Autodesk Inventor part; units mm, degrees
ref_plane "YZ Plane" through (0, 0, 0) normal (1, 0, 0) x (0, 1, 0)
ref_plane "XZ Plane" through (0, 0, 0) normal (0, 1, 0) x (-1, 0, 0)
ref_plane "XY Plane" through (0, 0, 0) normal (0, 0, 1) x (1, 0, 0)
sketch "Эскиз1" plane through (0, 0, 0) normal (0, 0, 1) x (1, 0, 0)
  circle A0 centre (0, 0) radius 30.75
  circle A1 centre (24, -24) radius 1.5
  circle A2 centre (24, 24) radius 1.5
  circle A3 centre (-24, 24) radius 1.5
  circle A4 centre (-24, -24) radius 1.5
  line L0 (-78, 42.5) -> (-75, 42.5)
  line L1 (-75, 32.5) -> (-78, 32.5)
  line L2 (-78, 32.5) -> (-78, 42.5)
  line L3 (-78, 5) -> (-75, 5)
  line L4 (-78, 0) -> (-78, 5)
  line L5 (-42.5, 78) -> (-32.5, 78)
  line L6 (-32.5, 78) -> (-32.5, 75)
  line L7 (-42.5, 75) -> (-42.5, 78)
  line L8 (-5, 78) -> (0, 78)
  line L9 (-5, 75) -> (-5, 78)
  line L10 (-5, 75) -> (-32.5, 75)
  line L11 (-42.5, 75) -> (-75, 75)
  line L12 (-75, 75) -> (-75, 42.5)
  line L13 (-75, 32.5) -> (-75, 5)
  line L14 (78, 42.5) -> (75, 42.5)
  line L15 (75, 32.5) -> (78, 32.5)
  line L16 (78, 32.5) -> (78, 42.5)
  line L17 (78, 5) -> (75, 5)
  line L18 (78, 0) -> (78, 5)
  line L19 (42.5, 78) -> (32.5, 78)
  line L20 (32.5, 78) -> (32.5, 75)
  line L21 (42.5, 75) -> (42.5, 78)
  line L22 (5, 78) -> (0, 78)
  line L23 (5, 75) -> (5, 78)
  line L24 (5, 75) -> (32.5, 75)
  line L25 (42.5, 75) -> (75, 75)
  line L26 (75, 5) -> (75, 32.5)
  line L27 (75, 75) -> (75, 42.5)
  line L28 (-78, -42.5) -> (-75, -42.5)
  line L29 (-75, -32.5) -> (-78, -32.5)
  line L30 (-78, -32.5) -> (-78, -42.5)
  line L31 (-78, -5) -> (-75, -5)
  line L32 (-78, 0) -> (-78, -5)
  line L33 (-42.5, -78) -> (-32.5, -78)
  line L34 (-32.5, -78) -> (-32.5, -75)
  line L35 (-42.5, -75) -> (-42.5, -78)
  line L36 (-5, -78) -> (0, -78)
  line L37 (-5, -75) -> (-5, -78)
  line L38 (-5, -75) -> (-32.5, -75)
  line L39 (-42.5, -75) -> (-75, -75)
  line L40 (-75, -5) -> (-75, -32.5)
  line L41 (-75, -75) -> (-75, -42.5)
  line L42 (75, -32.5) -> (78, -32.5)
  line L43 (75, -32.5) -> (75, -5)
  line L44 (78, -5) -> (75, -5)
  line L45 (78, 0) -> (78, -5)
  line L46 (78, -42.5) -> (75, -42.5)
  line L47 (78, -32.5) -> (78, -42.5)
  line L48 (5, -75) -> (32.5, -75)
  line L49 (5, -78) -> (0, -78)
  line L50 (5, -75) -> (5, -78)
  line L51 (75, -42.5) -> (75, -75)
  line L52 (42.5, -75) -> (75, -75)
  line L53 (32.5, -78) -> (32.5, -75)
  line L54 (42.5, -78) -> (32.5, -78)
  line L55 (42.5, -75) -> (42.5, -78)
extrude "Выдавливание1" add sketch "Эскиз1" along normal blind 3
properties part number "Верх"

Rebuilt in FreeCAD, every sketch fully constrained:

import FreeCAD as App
import Part
import Sketcher
from FreeCAD import Vector


def add_polygon(sketch, points):
    """Adds a closed chain of lines whose ends are joined by coincident constraints."""
    first, n = sketch.GeometryCount, len(points)
    for a, b in zip(points, points[1:] + points[:1]):
        sketch.addGeometry(Part.LineSegment(App.Vector(*a, 0), App.Vector(*b, 0)), False)
    for i in range(n):
        sketch.addConstraint(Sketcher.Constraint("Coincident", first + i, 2, first + (i + 1) % n, 1))

doc = App.newDocument("Part")
body = doc.addObject("PartDesign::Body", "Body")

# Sketch on XY plane
sketch1 = doc.addObject("Sketcher::SketchObject", "Sketch")
body.addObject(sketch1)
sketch1.AttachmentSupport = (doc.XY_Plane, [""])
sketch1.MapMode = "FlatFace"
add_polygon(sketch1, [(-75, 42.5), (-78, 42.5), (-78, 32.5), (-75, 32.5), (-75, 5), (-78, 5), (-78, -5), (-75, -5), (-75, -32.5), (-78, -32.5), (-78, -42.5), (-75, -42.5), (-75, -75), (-42.5, -75), (-42.5, -78), (-32.5, -78), (-32.5, -75), (-5, -75), (-5, -78), (5, -78), (5, -75), (32.5, -75), (32.5, -78), (42.5, -78), (42.5, -75), (75, -75), (75, -42.5), (78, -42.5), (78, -32.5), (75, -32.5), (75, -5), (78, -5), (78, 5), (75, 5), (75, 32.5), (78, 32.5), (78, 42.5), (75, 42.5), (75, 75), (42.5, 75), (42.5, 78), (32.5, 78), (32.5, 75), (5, 75), (5, 78), (-5, 78), (-5, 75), (-32.5, 75), (-32.5, 78), (-42.5, 78), (-42.5, 75), (-75, 75)])  # lines 0-51
sketch1.addGeometry(Part.Circle(Vector(-24, -24, 0), Vector(0, 0, 1), 1.5), False)  # 52
sketch1.addGeometry(Part.Circle(Vector(24, -24, 0), Vector(0, 0, 1), 1.5), False)  # 53
sketch1.addGeometry(Part.Circle(Vector(-24, 24, 0), Vector(0, 0, 1), 1.5), False)  # 54
sketch1.addGeometry(Part.Circle(Vector(0, 0, 0), Vector(0, 0, 1), 30.8), False)  # 55
sketch1.addGeometry(Part.Circle(Vector(24, 24, 0), Vector(0, 0, 1), 1.5), False)  # 56
sketch1.addConstraint(Sketcher.Constraint("Horizontal", 0))
sketch1.addConstraint(Sketcher.Constraint("Vertical", 1))
sketch1.addConstraint(Sketcher.Constraint("Horizontal", 2))
sketch1.addConstraint(Sketcher.Constraint("Vertical", 3))
sketch1.addConstraint(Sketcher.Constraint("Horizontal", 4))
sketch1.addConstraint(Sketcher.Constraint("Vertical", 5))
sketch1.addConstraint(Sketcher.Constraint("Horizontal", 6))
sketch1.addConstraint(Sketcher.Constraint("Vertical", 7))
sketch1.addConstraint(Sketcher.Constraint("Horizontal", 8))
sketch1.addConstraint(Sketcher.Constraint("Vertical", 9))
sketch1.addConstraint(Sketcher.Constraint("Horizontal", 10))
sketch1.addConstraint(Sketcher.Constraint("Vertical", 11))
sketch1.addConstraint(Sketcher.Constraint("Horizontal", 12))
sketch1.addConstraint(Sketcher.Constraint("Vertical", 13))
sketch1.addConstraint(Sketcher.Constraint("Horizontal", 14))
sketch1.addConstraint(Sketcher.Constraint("Vertical", 15))
sketch1.addConstraint(Sketcher.Constraint("Horizontal", 16))
sketch1.addConstraint(Sketcher.Constraint("Vertical", 17))
sketch1.addConstraint(Sketcher.Constraint("Horizontal", 18))
sketch1.addConstraint(Sketcher.Constraint("Vertical", 19))
sketch1.addConstraint(Sketcher.Constraint("Horizontal", 20))
sketch1.addConstraint(Sketcher.Constraint("Vertical", 21))
sketch1.addConstraint(Sketcher.Constraint("Horizontal", 22))
sketch1.addConstraint(Sketcher.Constraint("Vertical", 23))
sketch1.addConstraint(Sketcher.Constraint("Horizontal", 24))
sketch1.addConstraint(Sketcher.Constraint("Vertical", 25))
sketch1.addConstraint(Sketcher.Constraint("Horizontal", 26))
sketch1.addConstraint(Sketcher.Constraint("Vertical", 27))
sketch1.addConstraint(Sketcher.Constraint("Horizontal", 28))
sketch1.addConstraint(Sketcher.Constraint("Vertical", 29))
sketch1.addConstraint(Sketcher.Constraint("Horizontal", 30))
sketch1.addConstraint(Sketcher.Constraint("Vertical", 31))
sketch1.addConstraint(Sketcher.Constraint("Horizontal", 32))
sketch1.addConstraint(Sketcher.Constraint("Vertical", 33))
sketch1.addConstraint(Sketcher.Constraint("Horizontal", 34))
sketch1.addConstraint(Sketcher.Constraint("Vertical", 35))
sketch1.addConstraint(Sketcher.Constraint("Horizontal", 36))
sketch1.addConstraint(Sketcher.Constraint("Vertical", 37))
sketch1.addConstraint(Sketcher.Constraint("Horizontal", 38))
sketch1.addConstraint(Sketcher.Constraint("Vertical", 39))
sketch1.addConstraint(Sketcher.Constraint("Horizontal", 40))
sketch1.addConstraint(Sketcher.Constraint("Vertical", 41))
sketch1.addConstraint(Sketcher.Constraint("Horizontal", 42))
sketch1.addConstraint(Sketcher.Constraint("Vertical", 43))
sketch1.addConstraint(Sketcher.Constraint("Horizontal", 44))
sketch1.addConstraint(Sketcher.Constraint("Vertical", 45))
sketch1.addConstraint(Sketcher.Constraint("Horizontal", 46))
sketch1.addConstraint(Sketcher.Constraint("Vertical", 47))
sketch1.addConstraint(Sketcher.Constraint("Horizontal", 48))
sketch1.addConstraint(Sketcher.Constraint("Vertical", 49))
sketch1.addConstraint(Sketcher.Constraint("Horizontal", 50))
sketch1.addConstraint(Sketcher.Constraint("Vertical", 51))
sketch1.addConstraint(Sketcher.Constraint("Coincident", 55, 3, -1, 1))
sketch1.addConstraint(Sketcher.Constraint("Equal", 52, 53))
sketch1.addConstraint(Sketcher.Constraint("Equal", 53, 54))
sketch1.addConstraint(Sketcher.Constraint("Equal", 54, 56))
sketch1.addConstraint(Sketcher.Constraint("Symmetric", 53, 3, 54, 3, -1, 1))
sketch1.addConstraint(Sketcher.Constraint("Symmetric", 52, 3, 56, 3, -1, 1))
sketch1.addConstraint(Sketcher.Constraint("Symmetric", 0, 2, 26, 2, -1, 1))
sketch1.addConstraint(Sketcher.Constraint("Symmetric", 2, 2, 28, 2, -1, 1))
sketch1.addConstraint(Sketcher.Constraint("Symmetric", 4, 2, 30, 2, -1, 1))
sketch1.addConstraint(Sketcher.Constraint("Symmetric", 6, 2, 32, 2, -1, 1))
sketch1.addConstraint(Sketcher.Constraint("Symmetric", 8, 2, 34, 2, -1, 1))
sketch1.addConstraint(Sketcher.Constraint("Symmetric", 10, 2, 36, 2, -1, 1))
sketch1.addConstraint(Sketcher.Constraint("Symmetric", 12, 2, 38, 2, -1, 1))
sketch1.addConstraint(Sketcher.Constraint("Symmetric", 14, 2, 40, 2, -1, 1))
sketch1.addConstraint(Sketcher.Constraint("Symmetric", 16, 2, 42, 2, -1, 1))
sketch1.addConstraint(Sketcher.Constraint("Symmetric", 18, 2, 44, 2, -1, 1))
sketch1.addConstraint(Sketcher.Constraint("Symmetric", 20, 2, 46, 2, -1, 1))
sketch1.addConstraint(Sketcher.Constraint("Symmetric", 22, 2, 48, 2, -1, 1))
sketch1.addConstraint(Sketcher.Constraint("Symmetric", 24, 2, 50, 2, -1, 1))
sketch1.addConstraint(Sketcher.Constraint("Symmetric", 52, 3, 53, 3, -2))
sketch1.addConstraint(Sketcher.Constraint("Symmetric", 16, 2, 19, 2, -2))
sketch1.addConstraint(Sketcher.Constraint("Symmetric", 14, 2, 21, 2, -2))
sketch1.addConstraint(Sketcher.Constraint("Symmetric", 12, 2, 23, 2, -2))
sketch1.addConstraint(Sketcher.Constraint("Symmetric", 10, 2, 25, 2, -2))
sketch1.addConstraint(Sketcher.Constraint("Symmetric", 8, 2, 27, 2, -2))
sketch1.addConstraint(Sketcher.Constraint("Symmetric", 6, 2, 29, 2, -2))
sketch1.addConstraint(Sketcher.Constraint("Horizontal", 12, 2, 15, 2))
sketch1.addConstraint(Sketcher.Constraint("Horizontal", 14, 2, 17, 2))
sketch1.addConstraint(Sketcher.Constraint("Vertical", 1, 2, 4, 2))
sketch1.addConstraint(Sketcher.Constraint("Vertical", 7, 2, 10, 2))
sketch1.addConstraint(Sketcher.Constraint("Equal", 14, 18))
sketch1.addConstraint(Sketcher.Constraint("Equal", 48, 1))
sketch1.addConstraint(Sketcher.Constraint("Equal", 46, 3))
sketch1.addConstraint(Sketcher.Constraint("Equal", 1, 5))
sketch1.addConstraint(Sketcher.Constraint("Equal", 50, 11))
sketch1.addConstraint(Sketcher.Constraint("Equal", 36, 13))
sketch1.addConstraint(Sketcher.Constraint("Diameter", 52, 3.0))
sketch1.addConstraint(Sketcher.Constraint("Diameter", 55, 61.5))
sketch1.addConstraint(Sketcher.Constraint("DistanceX", 0, 2, 0, 1, 3.0))
sketch1.addConstraint(Sketcher.Constraint("DistanceX", 14, 1, 14, 2, 10.0))
sketch1.addConstraint(Sketcher.Constraint("DistanceX", 12, 1, 12, 2, 32.5))
sketch1.addConstraint(Sketcher.Constraint("DistanceX", 16, 1, 16, 2, 27.5))
sketch1.addConstraint(Sketcher.Constraint("DistanceX", 52, 3, -1, 1, 24.0))
sketch1.addConstraint(Sketcher.Constraint("DistanceY", 52, 3, -1, 1, 24.0))
pad1 = doc.addObject("PartDesign::Pad", "Pad")
body.addObject(pad1)
pad1.Profile = sketch1
pad1.Length = 3

doc.recompute()
